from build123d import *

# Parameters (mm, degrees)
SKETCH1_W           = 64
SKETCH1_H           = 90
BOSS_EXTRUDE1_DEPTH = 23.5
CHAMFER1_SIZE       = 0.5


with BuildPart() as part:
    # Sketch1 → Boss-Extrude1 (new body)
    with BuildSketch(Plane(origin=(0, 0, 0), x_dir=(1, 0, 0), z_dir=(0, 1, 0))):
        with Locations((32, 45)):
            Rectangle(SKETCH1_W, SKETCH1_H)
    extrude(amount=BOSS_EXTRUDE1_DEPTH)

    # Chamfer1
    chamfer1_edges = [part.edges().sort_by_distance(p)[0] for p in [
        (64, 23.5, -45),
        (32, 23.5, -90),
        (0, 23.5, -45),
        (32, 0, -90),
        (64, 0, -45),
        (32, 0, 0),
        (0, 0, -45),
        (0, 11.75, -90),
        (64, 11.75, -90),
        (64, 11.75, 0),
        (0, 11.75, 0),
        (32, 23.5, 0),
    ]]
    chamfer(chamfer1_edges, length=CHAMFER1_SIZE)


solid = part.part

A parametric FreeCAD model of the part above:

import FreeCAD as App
import Part
import Sketcher

doc = App.newDocument("Part")
body = doc.addObject("PartDesign::Body", "Body")

# Sketch on XZ plane
sketch1 = body.newObject("Sketcher::SketchObject", "Sketch")
sketch1.AttachmentSupport = (doc.getObject("XZ_Plane"), [""])
sketch1.MapMode = "FlatFace"
sketch1.addGeometry([
    Part.LineSegment(App.Vector(0, -90, 0), App.Vector(0, 0, 0)),
    Part.LineSegment(App.Vector(0, 0, 0), App.Vector(64, 0, 0)),
    Part.LineSegment(App.Vector(64, 0, 0), App.Vector(64, -90, 0)),
    Part.LineSegment(App.Vector(64, -90, 0), App.Vector(0, -90, 0)),
], False)
sketch1.addConstraint([
    Sketcher.Constraint("Coincident", 0, 2, 1, 1),
    Sketcher.Constraint("Coincident", 1, 2, 2, 1),
    Sketcher.Constraint("Coincident", 2, 2, 3, 1),
    Sketcher.Constraint("Coincident", 3, 2, 0, 1),
    Sketcher.Constraint("Vertical", 0),
    Sketcher.Constraint("Horizontal", 1),
    Sketcher.Constraint("Vertical", 2),
    Sketcher.Constraint("Horizontal", 3),
    Sketcher.Constraint("Coincident", 0, 2, -1, 1),
    Sketcher.Constraint("DistanceX", 1, 1, 1, 2, 64.0),
    Sketcher.Constraint("DistanceY", 0, 1, 0, 2, 90.0),
])
pad1 = body.newObject("PartDesign::Pad", "Pad")
pad1.Profile = sketch1
pad1.Length = 23.5
pad1.Reversed = True
doc.recompute()

chamfer = body.newObject("PartDesign::Chamfer", "Chamfer")
chamfer.Base = (pad1, ["Edge1"])
chamfer.UseAllEdges = True
chamfer.Size = 0.5

doc.recompute()
